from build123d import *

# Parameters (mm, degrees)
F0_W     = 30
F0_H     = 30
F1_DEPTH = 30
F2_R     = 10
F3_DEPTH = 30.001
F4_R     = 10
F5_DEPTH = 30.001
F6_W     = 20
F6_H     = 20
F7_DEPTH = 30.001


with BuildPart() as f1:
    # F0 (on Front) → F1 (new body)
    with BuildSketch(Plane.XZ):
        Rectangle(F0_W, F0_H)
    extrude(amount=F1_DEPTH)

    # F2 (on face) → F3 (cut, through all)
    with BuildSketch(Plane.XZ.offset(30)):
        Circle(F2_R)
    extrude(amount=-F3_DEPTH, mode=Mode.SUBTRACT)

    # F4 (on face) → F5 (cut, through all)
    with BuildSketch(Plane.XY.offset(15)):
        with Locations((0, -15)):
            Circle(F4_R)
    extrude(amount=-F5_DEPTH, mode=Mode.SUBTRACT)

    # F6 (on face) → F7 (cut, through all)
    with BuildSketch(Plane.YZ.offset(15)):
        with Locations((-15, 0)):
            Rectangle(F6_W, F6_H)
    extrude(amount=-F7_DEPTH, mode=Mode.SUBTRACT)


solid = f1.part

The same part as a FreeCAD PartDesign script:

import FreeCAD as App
import Part
import Sketcher
Q = App.Units.Quantity

doc = App.newDocument("Part")
body = doc.addObject("PartDesign::Body", "Body")

sketch1 = doc.addObject("Sketcher::SketchObject", "Sketch")
body.addObject(sketch1)
sketch1.AttachmentSupport = (doc.XZ_Plane, [""])
sketch1.MapMode = "FlatFace"
sketch1.addGeometry(Part.LineSegment(App.Vector(-15, 15, 0), App.Vector(-15, -15, 0)), False)
sketch1.addGeometry(Part.LineSegment(App.Vector(-15, -15, 0), App.Vector(15, -15, 0)), False)
sketch1.addGeometry(Part.LineSegment(App.Vector(15, -15, 0), App.Vector(15, 15, 0)), False)
sketch1.addGeometry(Part.LineSegment(App.Vector(15, 15, 0), App.Vector(-15, 15, 0)), False)
sketch1.addConstraint(Sketcher.Constraint("Coincident", 0, 2, 1, 1))
sketch1.addConstraint(Sketcher.Constraint("Coincident", 1, 2, 2, 1))
sketch1.addConstraint(Sketcher.Constraint("Coincident", 2, 2, 3, 1))
sketch1.addConstraint(Sketcher.Constraint("Coincident", 3, 2, 0, 1))
sketch1.addConstraint(Sketcher.Constraint("Vertical", 0))
sketch1.addConstraint(Sketcher.Constraint("Horizontal", 1))
sketch1.addConstraint(Sketcher.Constraint("Vertical", 2))
sketch1.addConstraint(Sketcher.Constraint("Horizontal", 3))
sketch1.addConstraint(Sketcher.Constraint("Symmetric", 0, 2, 2, 2, -1, 1))
sketch1.addConstraint(Sketcher.Constraint("Equal", 3, 0))
sketch1.addConstraint(Sketcher.Constraint("DistanceX", 1, 1, 1, 2, Q("30 mm")))
pad1 = doc.addObject("PartDesign::Pad", "Pad")
body.addObject(pad1)
pad1.Profile = sketch1
pad1.Length = 30

sketch2 = doc.addObject("Sketcher::SketchObject", "Sketch001")
body.addObject(sketch2)
sketch2.AttachmentSupport = (doc.XZ_Plane, [""])
sketch2.MapMode = "FlatFace"
sketch2.AttachmentOffset = App.Placement(App.Vector(0, 0, 30), App.Rotation())
sketch2.addGeometry(Part.Circle(App.Vector(0, 0, 0), App.Vector(0, 0, 1), 10), False)
sketch2.addConstraint(Sketcher.Constraint("Coincident", 0, 3, -1, 1))
sketch2.addConstraint(Sketcher.Constraint("Diameter", 0, Q("20 mm")))
pocket1 = doc.addObject("PartDesign::Pocket", "Pocket")
body.addObject(pocket1)
pocket1.Profile = sketch2
pocket1.Type = "ThroughAll"

sketch3 = doc.addObject("Sketcher::SketchObject", "Sketch002")
body.addObject(sketch3)
sketch3.AttachmentSupport = (doc.XY_Plane, [""])
sketch3.MapMode = "FlatFace"
sketch3.AttachmentOffset = App.Placement(App.Vector(0, 0, 15), App.Rotation())
sketch3.addGeometry(Part.Circle(App.Vector(0, -15, 0), App.Vector(0, 0, 1), 10), False)
sketch3.addConstraint(Sketcher.Constraint("PointOnObject", 0, 3, -2))
sketch3.addConstraint(Sketcher.Constraint("Diameter", 0, Q("20 mm")))
sketch3.addConstraint(Sketcher.Constraint("DistanceY", 0, 3, -1, 1, Q("15 mm")))
pocket2 = doc.addObject("PartDesign::Pocket", "Pocket001")
body.addObject(pocket2)
pocket2.Profile = sketch3
pocket2.Type = "ThroughAll"

sketch4 = doc.addObject("Sketcher::SketchObject", "Sketch003")
body.addObject(sketch4)
sketch4.AttachmentSupport = (doc.YZ_Plane, [""])
sketch4.MapMode = "FlatFace"
sketch4.AttachmentOffset = App.Placement(App.Vector(0, 0, 15), App.Rotation())
sketch4.addGeometry(Part.LineSegment(App.Vector(-25, 10, 0), App.Vector(-25, -10, 0)), False)
sketch4.addGeometry(Part.LineSegment(App.Vector(-25, -10, 0), App.Vector(-5, -10, 0)), False)
sketch4.addGeometry(Part.LineSegment(App.Vector(-5, -10, 0), App.Vector(-5, 10, 0)), False)
sketch4.addGeometry(Part.LineSegment(App.Vector(-5, 10, 0), App.Vector(-25, 10, 0)), False)
sketch4.addConstraint(Sketcher.Constraint("Coincident", 0, 2, 1, 1))
sketch4.addConstraint(Sketcher.Constraint("Coincident", 1, 2, 2, 1))
sketch4.addConstraint(Sketcher.Constraint("Coincident", 2, 2, 3, 1))
sketch4.addConstraint(Sketcher.Constraint("Coincident", 3, 2, 0, 1))
sketch4.addConstraint(Sketcher.Constraint("Vertical", 0))
sketch4.addConstraint(Sketcher.Constraint("Horizontal", 1))
sketch4.addConstraint(Sketcher.Constraint("Vertical", 2))
sketch4.addConstraint(Sketcher.Constraint("Horizontal", 3))
sketch4.addConstraint(Sketcher.Constraint("Equal", 3, 0))
sketch4.addConstraint(Sketcher.Constraint("DistanceX", 1, 1, 1, 2, Q("20 mm")))
sketch4.addConstraint(Sketcher.Constraint("DistanceX", 0, 2, -1, 1, Q("25 mm")))
sketch4.addConstraint(Sketcher.Constraint("DistanceY", 0, 2, -1, 1, Q("10 mm")))
pocket3 = doc.addObject("PartDesign::Pocket", "Pocket002")
body.addObject(pocket3)
pocket3.Profile = sketch4
pocket3.Type = "ThroughAll"

doc.recompute()
